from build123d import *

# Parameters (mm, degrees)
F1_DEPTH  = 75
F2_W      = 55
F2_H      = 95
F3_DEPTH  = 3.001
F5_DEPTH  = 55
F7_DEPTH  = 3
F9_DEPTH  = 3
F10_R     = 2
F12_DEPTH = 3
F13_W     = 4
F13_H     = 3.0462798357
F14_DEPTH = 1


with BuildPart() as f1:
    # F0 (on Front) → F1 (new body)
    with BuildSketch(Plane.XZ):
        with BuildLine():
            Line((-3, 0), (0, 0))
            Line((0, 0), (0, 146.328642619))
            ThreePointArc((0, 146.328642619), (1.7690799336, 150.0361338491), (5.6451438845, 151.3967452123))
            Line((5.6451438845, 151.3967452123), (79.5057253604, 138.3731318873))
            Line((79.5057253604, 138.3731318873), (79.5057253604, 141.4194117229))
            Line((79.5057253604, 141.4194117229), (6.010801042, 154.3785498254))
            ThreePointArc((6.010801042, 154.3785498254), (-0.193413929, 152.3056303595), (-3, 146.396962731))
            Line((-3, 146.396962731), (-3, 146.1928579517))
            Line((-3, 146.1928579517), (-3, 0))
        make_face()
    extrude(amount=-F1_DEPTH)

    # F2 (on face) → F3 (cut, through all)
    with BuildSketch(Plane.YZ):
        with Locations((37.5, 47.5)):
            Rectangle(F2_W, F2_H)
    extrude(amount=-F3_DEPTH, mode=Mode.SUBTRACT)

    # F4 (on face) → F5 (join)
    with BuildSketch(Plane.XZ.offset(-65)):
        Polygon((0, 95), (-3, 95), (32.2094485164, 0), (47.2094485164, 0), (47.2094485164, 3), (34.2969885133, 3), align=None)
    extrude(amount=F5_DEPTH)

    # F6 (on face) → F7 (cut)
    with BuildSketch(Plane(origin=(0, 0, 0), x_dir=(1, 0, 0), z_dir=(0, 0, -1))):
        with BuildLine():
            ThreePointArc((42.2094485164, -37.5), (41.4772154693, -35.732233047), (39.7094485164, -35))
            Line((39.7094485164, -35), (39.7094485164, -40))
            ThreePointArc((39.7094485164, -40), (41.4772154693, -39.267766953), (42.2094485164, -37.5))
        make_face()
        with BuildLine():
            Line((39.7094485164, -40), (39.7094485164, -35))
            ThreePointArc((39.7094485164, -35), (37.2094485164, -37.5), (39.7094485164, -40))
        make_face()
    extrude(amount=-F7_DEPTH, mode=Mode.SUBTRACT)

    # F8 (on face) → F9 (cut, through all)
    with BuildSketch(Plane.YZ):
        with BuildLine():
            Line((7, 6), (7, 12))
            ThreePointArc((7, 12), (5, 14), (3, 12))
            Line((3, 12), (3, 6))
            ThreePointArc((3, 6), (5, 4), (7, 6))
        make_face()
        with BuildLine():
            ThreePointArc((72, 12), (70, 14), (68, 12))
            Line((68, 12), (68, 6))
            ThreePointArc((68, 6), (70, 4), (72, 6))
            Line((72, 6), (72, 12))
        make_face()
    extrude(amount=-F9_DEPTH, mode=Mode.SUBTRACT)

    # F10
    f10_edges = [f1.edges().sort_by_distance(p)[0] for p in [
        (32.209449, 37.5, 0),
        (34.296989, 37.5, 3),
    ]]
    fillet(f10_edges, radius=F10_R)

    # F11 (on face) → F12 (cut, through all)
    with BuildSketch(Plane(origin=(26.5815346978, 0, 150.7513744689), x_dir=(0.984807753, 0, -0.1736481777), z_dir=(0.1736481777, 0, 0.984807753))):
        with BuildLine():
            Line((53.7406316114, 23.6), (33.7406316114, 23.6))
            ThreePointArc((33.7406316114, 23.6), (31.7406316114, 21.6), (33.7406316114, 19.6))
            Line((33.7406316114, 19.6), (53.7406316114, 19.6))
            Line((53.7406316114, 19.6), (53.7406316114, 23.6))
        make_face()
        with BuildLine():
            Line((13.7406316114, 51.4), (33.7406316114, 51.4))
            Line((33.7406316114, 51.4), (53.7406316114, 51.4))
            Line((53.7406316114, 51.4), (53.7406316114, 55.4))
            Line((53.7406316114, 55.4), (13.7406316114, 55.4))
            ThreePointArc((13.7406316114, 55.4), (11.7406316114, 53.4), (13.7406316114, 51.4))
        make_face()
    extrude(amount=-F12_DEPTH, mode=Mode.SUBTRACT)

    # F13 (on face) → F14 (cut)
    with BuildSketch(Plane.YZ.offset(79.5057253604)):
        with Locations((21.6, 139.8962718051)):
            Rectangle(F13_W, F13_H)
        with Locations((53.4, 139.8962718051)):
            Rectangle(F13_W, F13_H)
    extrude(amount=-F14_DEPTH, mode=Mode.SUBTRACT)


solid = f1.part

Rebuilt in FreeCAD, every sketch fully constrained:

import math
import FreeCAD as App
import Part
import Sketcher
from FreeCAD import Vector


def edges_at(feature, points):
    """Names of the edges that pass closest to the given points."""
    edges = feature.Shape.Edges
    near = lambda p: min(range(len(edges)), key=lambda i: edges[i].distToShape(Part.Vertex(*p))[0])
    return sorted({f"Edge{near(p) + 1}" for p in points})


def add_polygon(sketch, points):
    """Adds a closed chain of lines whose ends are joined by coincident constraints."""
    first, n = sketch.GeometryCount, len(points)
    for a, b in zip(points, points[1:] + points[:1]):
        sketch.addGeometry(Part.LineSegment(App.Vector(*a, 0), App.Vector(*b, 0)), False)
    for i in range(n):
        sketch.addConstraint(Sketcher.Constraint("Coincident", first + i, 2, first + (i + 1) % n, 1))

doc = App.newDocument("Part")
body = doc.addObject("PartDesign::Body", "Body")

# Sketch on XZ plane
sketch1 = body.newObject("Sketcher::SketchObject", "Sketch")
sketch1.AttachmentSupport = (doc.getObject("XZ_Plane"), [""])
sketch1.MapMode = "FlatFace"
sketch1.addGeometry(Part.LineSegment(Vector(-3, 0, 0), Vector(0, 0, 0)), False)
sketch1.addGeometry(Part.LineSegment(Vector(0, 0, 0), Vector(0, 146.328643, 0)), False)
sketch1.addGeometry(Part.ArcOfCircle(Part.Circle(Vector(5.343507, 146.054731, 0), Vector(0, 0, 1), 5.350523), math.radians(86.768228), math.radians(177.065552)), False)
sketch1.addGeometry(Part.LineSegment(Vector(5.645144, 151.396745, 0), Vector(79.505725, 138.373132, 0)), False)
sketch1.addGeometry(Part.LineSegment(Vector(79.505725, 138.373132, 0), Vector(79.505725, 141.419412, 0)), False)
sketch1.addGeometry(Part.LineSegment(Vector(79.505725, 141.419412, 0), Vector(6.010801, 154.37855, 0)), False)
sketch1.addGeometry(Part.ArcOfCircle(Part.Circle(Vector(5.343507, 146.054731, 0), Vector(0, 0, 1), 8.350523), math.radians(85.416584), math.radians(177.651175)), False)
sketch1.addGeometry(Part.LineSegment(Vector(-3, 146.396963, 0), Vector(-3, 0, 0)), False)
sketch1.addConstraint(Sketcher.Constraint("Coincident", 0, 2, 1, 1))
sketch1.addConstraint(Sketcher.Constraint("Coincident", 1, 2, 2, 2))
sketch1.addConstraint(Sketcher.Constraint("Coincident", 2, 1, 3, 1))
sketch1.addConstraint(Sketcher.Constraint("Coincident", 3, 2, 4, 1))
sketch1.addConstraint(Sketcher.Constraint("Coincident", 4, 2, 5, 1))
sketch1.addConstraint(Sketcher.Constraint("Coincident", 5, 2, 6, 1))
sketch1.addConstraint(Sketcher.Constraint("Coincident", 6, 2, 7, 1))
sketch1.addConstraint(Sketcher.Constraint("Coincident", 7, 2, 0, 1))
sketch1.addConstraint(Sketcher.Constraint("Horizontal", 0))
sketch1.addConstraint(Sketcher.Constraint("Vertical", 1))
sketch1.addConstraint(Sketcher.Constraint("Vertical", 4))
sketch1.addConstraint(Sketcher.Constraint("Vertical", 7))
sketch1.addConstraint(Sketcher.Constraint("Coincident", 0, 2, -1, 1))
sketch1.addConstraint(Sketcher.Constraint("Coincident", 6, 3, 2, 3))
sketch1.addConstraint(Sketcher.Constraint("DistanceX", 0, 1, 0, 2, 3.0))
sketch1.addConstraint(Sketcher.Constraint("Distance", 3, 75.0))
sketch1.addConstraint(Sketcher.Constraint("Radius", 2, 5.350523))
sketch1.addConstraint(Sketcher.Constraint("Radius", 6, 8.350523))
sketch1.addConstraint(Sketcher.Constraint("Distance", 5, 74.628702))
sketch1.addConstraint(Sketcher.Constraint("DistanceY", 4, 1, 4, 2, 3.04628))
sketch1.addConstraint(Sketcher.Constraint("DistanceX", -1, 1, 5, 2, 6.010801))
sketch1.addConstraint(Sketcher.Constraint("DistanceY", 3, 2, 2, 3, 7.681599))
sketch1.addConstraint(Sketcher.Constraint("DistanceY", 1, 1, 1, 2, 146.328643))
sketch1.addConstraint(Sketcher.Constraint("DistanceY", 7, 2, 7, 1, 146.396963))
pad1 = body.newObject("PartDesign::Pad", "Pad")
pad1.Profile = sketch1
pad1.Length = 75
pad1.Reversed = True

# Sketch on YZ plane
sketch2 = body.newObject("Sketcher::SketchObject", "Sketch001")
sketch2.AttachmentSupport = (doc.getObject("YZ_Plane"), [""])
sketch2.MapMode = "FlatFace"
add_polygon(sketch2, [(10, 95), (10, 0), (65, 0), (65, 95)])  # lines 0-3
sketch2.addConstraint(Sketcher.Constraint("Vertical", 0))
sketch2.addConstraint(Sketcher.Constraint("Horizontal", 1))
sketch2.addConstraint(Sketcher.Constraint("Vertical", 2))
sketch2.addConstraint(Sketcher.Constraint("Horizontal", 3))
sketch2.addConstraint(Sketcher.Constraint("PointOnObject", 0, 2, -1))
sketch2.addConstraint(Sketcher.Constraint("DistanceX", 1, 1, 1, 2, 55.0))
sketch2.addConstraint(Sketcher.Constraint("DistanceY", 0, 2, 0, 1, 95.0))
sketch2.addConstraint(Sketcher.Constraint("DistanceX", -1, 1, 0, 2, 10.0))
pocket1 = body.newObject("PartDesign::Pocket", "Pocket")
pocket1.Profile = sketch2
pocket1.Type = "ThroughAll"

# Sketch on XZ plane
sketch3 = body.newObject("Sketcher::SketchObject", "Sketch002")
sketch3.AttachmentSupport = (doc.getObject("XZ_Plane"), [""])
sketch3.MapMode = "FlatFace"
sketch3.AttachmentOffset = App.Placement(Vector(0, 0, -65), App.Rotation())
add_polygon(sketch3, [(0, 95), (-3, 95), (32.2, 0), (47.2, 0), (47.2, 3), (34.3, 3)])  # lines 0-5
sketch3.addConstraint(Sketcher.Constraint("Horizontal", 0))
sketch3.addConstraint(Sketcher.Constraint("Horizontal", 2))
sketch3.addConstraint(Sketcher.Constraint("Vertical", 3))
sketch3.addConstraint(Sketcher.Constraint("Horizontal", 4))
sketch3.addConstraint(Sketcher.Constraint("PointOnObject", 1, 2, -1))
sketch3.addConstraint(Sketcher.Constraint("PointOnObject", 5, 2, -2))
sketch3.addConstraint(Sketcher.Constraint("Equal", 0, 3))
sketch3.addConstraint(Sketcher.Constraint("DistanceX", 0, 2, 0, 1, 3.0))
sketch3.addConstraint(Sketcher.Constraint("DistanceX", 2, 1, 2, 2, 15.0))
sketch3.addConstraint(Sketcher.Constraint("DistanceY", -1, 1, 0, 2, 95.0))
sketch3.addConstraint(Sketcher.Constraint("DistanceX", 4, 2, 4, 1, 12.91246))
sketch3.addConstraint(Sketcher.Constraint("Distance", 1, 101.314882))
pad2 = body.newObject("PartDesign::Pad", "Pad001")
pad2.Profile = sketch3
pad2.Length = 55

# Sketch on XY plane
sketch4 = body.newObject("Sketcher::SketchObject", "Sketch003")
sketch4.AttachmentSupport = (doc.getObject("XY_Plane"), [""])
sketch4.MapMode = "FlatFace"
sketch4.addGeometry(Part.ArcOfCircle(Part.Circle(Vector(39.7, 37.5, 0), Vector(0, 0, 1), 2.5), math.radians(-90), math.radians(0)), False)
sketch4.addGeometry(Part.ArcOfCircle(Part.Circle(Vector(39.7, 37.5, 0), Vector(0, 0, 1), 2.5), math.radians(90), math.radians(270)), False)
sketch4.addGeometry(Part.ArcOfCircle(Part.Circle(Vector(39.7, 37.5, 0), Vector(0, 0, 1), 2.5), math.radians(0), math.radians(90)), False)
sketch4.addConstraint(Sketcher.Constraint("Tangent", 0, 1, 1, 2))
sketch4.addConstraint(Sketcher.Constraint("Tangent", 1, 1, 2, 2))
sketch4.addConstraint(Sketcher.Constraint("Tangent", 2, 1, 0, 2))
sketch4.addConstraint(Sketcher.Constraint("Horizontal", 1, 3, 2, 1))
sketch4.addConstraint(Sketcher.Constraint("Vertical", 2, 3, 0, 1))
sketch4.addConstraint(Sketcher.Constraint("Vertical", 0, 1, 1, 1))
sketch4.addConstraint(Sketcher.Constraint("Radius", 0, 2.5))
sketch4.addConstraint(Sketcher.Constraint("DistanceY", -1, 1, 0, 1, 35.0))
sketch4.addConstraint(Sketcher.Constraint("DistanceX", -1, 1, 0, 3, 39.709449))
pocket2 = body.newObject("PartDesign::Pocket", "Pocket001")
pocket2.Profile = sketch4
pocket2.Length = 3
pocket2.Reversed = True

# Sketch on YZ plane
sketch5 = body.newObject("Sketcher::SketchObject", "Sketch004")
sketch5.AttachmentSupport = (doc.getObject("YZ_Plane"), [""])
sketch5.MapMode = "FlatFace"
sketch5.addGeometry(Part.LineSegment(Vector(7, 6, 0), Vector(7, 12, 0)), False)
sketch5.addGeometry(Part.ArcOfCircle(Part.Circle(Vector(5, 12, 0), Vector(0, 0, 1), 2), math.radians(0), math.radians(180)), False)
sketch5.addGeometry(Part.LineSegment(Vector(3, 12, 0), Vector(3, 6, 0)), False)
sketch5.addGeometry(Part.ArcOfCircle(Part.Circle(Vector(5, 6, 0), Vector(0, 0, 1), 2), math.radians(180), math.radians(360)), False)
sketch5.addGeometry(Part.ArcOfCircle(Part.Circle(Vector(70, 12, 0), Vector(0, 0, 1), 2), math.radians(0), math.radians(180)), False)
sketch5.addGeometry(Part.LineSegment(Vector(68, 12, 0), Vector(68, 6, 0)), False)
sketch5.addGeometry(Part.ArcOfCircle(Part.Circle(Vector(70, 6, 0), Vector(0, 0, 1), 2), math.radians(180), math.radians(360)), False)
sketch5.addGeometry(Part.LineSegment(Vector(72, 6, 0), Vector(72, 12, 0)), False)
sketch5.addConstraint(Sketcher.Constraint("Tangent", 0, 2, 1, 1))
sketch5.addConstraint(Sketcher.Constraint("Tangent", 1, 2, 2, 1))
sketch5.addConstraint(Sketcher.Constraint("Tangent", 2, 2, 3, 1))
sketch5.addConstraint(Sketcher.Constraint("Tangent", 3, 2, 0, 1))
sketch5.addConstraint(Sketcher.Constraint("Tangent", 4, 2, 5, 1))
sketch5.addConstraint(Sketcher.Constraint("Tangent", 5, 2, 6, 1))
sketch5.addConstraint(Sketcher.Constraint("Tangent", 6, 2, 7, 1))
sketch5.addConstraint(Sketcher.Constraint("Tangent", 7, 2, 4, 1))
sketch5.addConstraint(Sketcher.Constraint("Vertical", 0))
sketch5.addConstraint(Sketcher.Constraint("Vertical", 2))
sketch5.addConstraint(Sketcher.Constraint("Vertical", 5))
sketch5.addConstraint(Sketcher.Constraint("Vertical", 7))
sketch5.addConstraint(Sketcher.Constraint("Equal", 3, 4))
sketch5.addConstraint(Sketcher.Constraint("Horizontal", 1, 3, 4, 3))
sketch5.addConstraint(Sketcher.Constraint("Horizontal", 3, 3, 6, 3))
sketch5.addConstraint(Sketcher.Constraint("Radius", 1, 2.0))
sketch5.addConstraint(Sketcher.Constraint("DistanceY", 0, 1, 0, 2, 6.0))
sketch5.addConstraint(Sketcher.Constraint("DistanceX", -1, 1, 1, 3, 5.0))
sketch5.addConstraint(Sketcher.Constraint("DistanceY", -1, 1, 1, 3, 12.0))
sketch5.addConstraint(Sketcher.Constraint("DistanceX", -1, 1, 4, 3, 70.0))
pocket3 = body.newObject("PartDesign::Pocket", "Pocket002")
pocket3.Profile = sketch5
pocket3.Type = "ThroughAll"
doc.recompute()

fillet = body.newObject("PartDesign::Fillet", "Fillet")
fillet.Base = (pocket3, edges_at(pocket3, [(32.209, 37.5, 0), (34.297, 37.5, 3)]))
fillet.Radius = 2

# Sketch on an angled plane
sketch6 = body.newObject("Sketcher::SketchObject", "Sketch005")
sketch6.Placement = App.Placement(Vector(26.581535, 0, 150.751374), App.Rotation(Vector(0.984807753, 0, -0.173648178), Vector(0, 1, 0), Vector(0.173648178, 0, 0.984807753), "ZXY"))
sketch6.addGeometry(Part.LineSegment(Vector(53.7, 23.6, 0), Vector(33.7, 23.6, 0)), False)
sketch6.addGeometry(Part.ArcOfCircle(Part.Circle(Vector(33.7, 21.6, 0), Vector(0, 0, 1), 2), math.radians(90), math.radians(270)), False)
sketch6.addGeometry(Part.LineSegment(Vector(33.7, 19.6, 0), Vector(53.7, 19.6, 0)), False)
sketch6.addGeometry(Part.LineSegment(Vector(53.7, 19.6, 0), Vector(53.7, 23.6, 0)), False)
sketch6.addGeometry(Part.LineSegment(Vector(13.7, 51.4, 0), Vector(53.7, 51.4, 0)), False)
sketch6.addGeometry(Part.LineSegment(Vector(53.7, 51.4, 0), Vector(53.7, 55.4, 0)), False)
sketch6.addGeometry(Part.LineSegment(Vector(53.7, 55.4, 0), Vector(13.7, 55.4, 0)), False)
sketch6.addGeometry(Part.ArcOfCircle(Part.Circle(Vector(13.7, 53.4, 0), Vector(0, 0, 1), 2), math.radians(90), math.radians(270)), False)
sketch6.addConstraint(Sketcher.Constraint("Tangent", 0, 2, 1, 1))
sketch6.addConstraint(Sketcher.Constraint("Tangent", 1, 2, 2, 1))
sketch6.addConstraint(Sketcher.Constraint("Coincident", 2, 2, 3, 1))
sketch6.addConstraint(Sketcher.Constraint("Coincident", 3, 2, 0, 1))
sketch6.addConstraint(Sketcher.Constraint("Coincident", 4, 2, 5, 1))
sketch6.addConstraint(Sketcher.Constraint("Coincident", 5, 2, 6, 1))
sketch6.addConstraint(Sketcher.Constraint("Tangent", 6, 2, 7, 1))
sketch6.addConstraint(Sketcher.Constraint("Tangent", 7, 2, 4, 1))
sketch6.addConstraint(Sketcher.Constraint("Horizontal", 0))
sketch6.addConstraint(Sketcher.Constraint("Horizontal", 2))
sketch6.addConstraint(Sketcher.Constraint("Vertical", 3))
sketch6.addConstraint(Sketcher.Constraint("Horizontal", 4))
sketch6.addConstraint(Sketcher.Constraint("Vertical", 5))
sketch6.addConstraint(Sketcher.Constraint("Horizontal", 6))
sketch6.addConstraint(Sketcher.Constraint("Equal", 1, 7))
sketch6.addConstraint(Sketcher.Constraint("Vertical", 3, 2, 4, 2))
sketch6.addConstraint(Sketcher.Constraint("Radius", 1, 2.0))
sketch6.addConstraint(Sketcher.Constraint("DistanceX", 0, 2, 0, 1, 20.0))
sketch6.addConstraint(Sketcher.Constraint("DistanceX", 4, 1, 4, 2, 40.0))
sketch6.addConstraint(Sketcher.Constraint("DistanceY", -1, 1, 1, 3, 21.6))
sketch6.addConstraint(Sketcher.Constraint("DistanceY", -1, 1, 7, 3, 53.4))
sketch6.addConstraint(Sketcher.Constraint("DistanceX", -1, 1, 1, 3, 33.740632))
pocket4 = body.newObject("PartDesign::Pocket", "Pocket003")
pocket4.Profile = sketch6
pocket4.Length = 3

# Sketch on YZ plane
sketch7 = body.newObject("Sketcher::SketchObject", "Sketch006")
sketch7.AttachmentSupport = (doc.getObject("YZ_Plane"), [""])
sketch7.MapMode = "FlatFace"
sketch7.AttachmentOffset = App.Placement(Vector(0, 0, 79.505725), App.Rotation())
add_polygon(sketch7, [(19.6, 141.4), (19.6, 138.4), (23.6, 138.4), (23.6, 141.4)])  # lines 0-3
add_polygon(sketch7, [(51.4, 141.4), (51.4, 138.4), (55.4, 138.4), (55.4, 141.4)])  # lines 4-7
sketch7.addConstraint(Sketcher.Constraint("Vertical", 0))
sketch7.addConstraint(Sketcher.Constraint("Horizontal", 1))
sketch7.addConstraint(Sketcher.Constraint("Vertical", 2))
sketch7.addConstraint(Sketcher.Constraint("Horizontal", 3))
sketch7.addConstraint(Sketcher.Constraint("Vertical", 4))
sketch7.addConstraint(Sketcher.Constraint("Horizontal", 5))
sketch7.addConstraint(Sketcher.Constraint("Vertical", 6))
sketch7.addConstraint(Sketcher.Constraint("Horizontal", 7))
sketch7.addConstraint(Sketcher.Constraint("Horizontal", 1, 2, 4, 2))
sketch7.addConstraint(Sketcher.Constraint("Horizontal", 3, 2, 6, 2))
sketch7.addConstraint(Sketcher.Constraint("Equal", 3, 5))
sketch7.addConstraint(Sketcher.Constraint("DistanceX", 1, 1, 1, 2, 4.0))
sketch7.addConstraint(Sketcher.Constraint("DistanceX", -1, 1, 0, 2, 19.6))
sketch7.addConstraint(Sketcher.Constraint("DistanceX", -1, 1, 4, 2, 51.4))
sketch7.addConstraint(Sketcher.Constraint("DistanceY", 0, 2, 0, 1, 3.04628))
sketch7.addConstraint(Sketcher.Constraint("DistanceY", -1, 1, 0, 2, 138.373132))
pocket5 = body.newObject("PartDesign::Pocket", "Pocket004")
pocket5.Profile = sketch7
pocket5.Length = 1

doc.recompute()
